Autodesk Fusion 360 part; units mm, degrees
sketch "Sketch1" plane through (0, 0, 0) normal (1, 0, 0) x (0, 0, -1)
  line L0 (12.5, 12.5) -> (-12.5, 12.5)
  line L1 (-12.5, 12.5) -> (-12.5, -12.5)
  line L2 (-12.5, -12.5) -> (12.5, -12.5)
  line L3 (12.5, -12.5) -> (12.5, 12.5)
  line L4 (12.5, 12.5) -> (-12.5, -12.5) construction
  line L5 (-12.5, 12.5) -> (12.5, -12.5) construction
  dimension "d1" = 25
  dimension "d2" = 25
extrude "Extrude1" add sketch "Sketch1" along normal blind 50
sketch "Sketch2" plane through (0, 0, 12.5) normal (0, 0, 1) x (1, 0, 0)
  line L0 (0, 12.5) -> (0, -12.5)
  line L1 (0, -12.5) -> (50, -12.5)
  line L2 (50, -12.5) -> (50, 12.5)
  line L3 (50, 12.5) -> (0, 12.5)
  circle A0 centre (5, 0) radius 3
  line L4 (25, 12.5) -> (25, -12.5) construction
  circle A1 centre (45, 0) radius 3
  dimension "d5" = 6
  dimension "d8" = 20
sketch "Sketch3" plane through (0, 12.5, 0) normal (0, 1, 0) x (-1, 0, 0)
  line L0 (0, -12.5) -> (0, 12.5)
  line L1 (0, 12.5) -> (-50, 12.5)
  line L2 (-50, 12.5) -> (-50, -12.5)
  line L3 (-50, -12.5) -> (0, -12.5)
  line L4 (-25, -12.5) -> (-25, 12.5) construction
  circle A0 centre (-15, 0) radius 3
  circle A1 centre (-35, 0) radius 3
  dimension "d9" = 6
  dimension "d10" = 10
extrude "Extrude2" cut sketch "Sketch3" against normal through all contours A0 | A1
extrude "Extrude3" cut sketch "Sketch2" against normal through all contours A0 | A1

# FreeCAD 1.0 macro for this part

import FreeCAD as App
import Part
import Sketcher

V = App.Vector


def add_polygon(sketch, points):
    """Adds a closed chain of lines whose ends are joined by coincident constraints."""
    first, n = sketch.GeometryCount, len(points)
    for a, b in zip(points, points[1:] + points[:1]):
        sketch.addGeometry(Part.LineSegment(App.Vector(*a, 0), App.Vector(*b, 0)), False)
    for i in range(n):
        sketch.addConstraint(Sketcher.Constraint("Coincident", first + i, 2, first + (i + 1) % n, 1))

doc = App.newDocument("Part")
body = doc.addObject("PartDesign::Body", "Body")

# Sketch on YZ plane
sketch1 = body.newObject("Sketcher::SketchObject", "Sketch")
sketch1.AttachmentSupport = (doc.getObject("YZ_Plane"), [""])
sketch1.MapMode = "FlatFace"
add_polygon(sketch1, [(-12.5, -12.5), (12.5, -12.5), (12.5, 12.5), (-12.5, 12.5)])  # lines 0-3
sketch1.addConstraint([
    Sketcher.Constraint("Horizontal", 0),
    Sketcher.Constraint("Vertical", 1),
    Sketcher.Constraint("Horizontal", 2),
    Sketcher.Constraint("Vertical", 3),
    Sketcher.Constraint("Symmetric", 0, 2, 2, 2, -1, 1),
    Sketcher.Constraint("Equal", 2, 1),
    Sketcher.Constraint("DistanceX", 0, 1, 0, 2, 25.0),
])
pad1 = body.newObject("PartDesign::Pad", "Pad")
pad1.Profile = sketch1
pad1.Length = 50

# Sketch on XZ plane
sketch2 = body.newObject("Sketcher::SketchObject", "Sketch001")
sketch2.AttachmentSupport = (doc.getObject("XZ_Plane"), [""])
sketch2.MapMode = "FlatFace"
sketch2.AttachmentOffset = App.Placement(V(0, 0, -12.5), App.Rotation())
sketch2.addGeometry([
    Part.Circle(V(15, 0, 0), V(0, 0, 1), 3),
    Part.Circle(V(35, 0, 0), V(0, 0, 1), 3),
], False)
sketch2.addConstraint([
    Sketcher.Constraint("Equal", 0, 1),
    Sketcher.Constraint("PointOnObject", 0, 3, -1),
    Sketcher.Constraint("PointOnObject", 1, 3, -1),
    Sketcher.Constraint("Diameter", 0, 6.0),
    Sketcher.Constraint("DistanceX", -1, 1, 0, 3, 15.0),
    Sketcher.Constraint("DistanceX", -1, 1, 1, 3, 35.0),
])
pocket1 = body.newObject("PartDesign::Pocket", "Pocket")
pocket1.Profile = sketch2
pocket1.Type = "ThroughAll"
pocket1.Reversed = True

# Sketch on XY plane
sketch3 = body.newObject("Sketcher::SketchObject", "Sketch002")
sketch3.AttachmentSupport = (doc.getObject("XY_Plane"), [""])
sketch3.MapMode = "FlatFace"
sketch3.AttachmentOffset = App.Placement(V(0, 0, 12.5), App.Rotation())
sketch3.addGeometry([
    Part.Circle(V(5, 0, 0), V(0, 0, 1), 3),
    Part.Circle(V(45, 0, 0), V(0, 0, 1), 3),
], False)
sketch3.addConstraint([
    Sketcher.Constraint("Equal", 0, 1),
    Sketcher.Constraint("PointOnObject", 0, 3, -1),
    Sketcher.Constraint("PointOnObject", 1, 3, -1),
    Sketcher.Constraint("Diameter", 0, 6.0),
    Sketcher.Constraint("DistanceX", -1, 1, 0, 3, 5.0),
    Sketcher.Constraint("DistanceX", -1, 1, 1, 3, 45.0),
])
pocket2 = body.newObject("PartDesign::Pocket", "Pocket001")
pocket2.Profile = sketch3
pocket2.Type = "ThroughAll"

doc.recompute()
